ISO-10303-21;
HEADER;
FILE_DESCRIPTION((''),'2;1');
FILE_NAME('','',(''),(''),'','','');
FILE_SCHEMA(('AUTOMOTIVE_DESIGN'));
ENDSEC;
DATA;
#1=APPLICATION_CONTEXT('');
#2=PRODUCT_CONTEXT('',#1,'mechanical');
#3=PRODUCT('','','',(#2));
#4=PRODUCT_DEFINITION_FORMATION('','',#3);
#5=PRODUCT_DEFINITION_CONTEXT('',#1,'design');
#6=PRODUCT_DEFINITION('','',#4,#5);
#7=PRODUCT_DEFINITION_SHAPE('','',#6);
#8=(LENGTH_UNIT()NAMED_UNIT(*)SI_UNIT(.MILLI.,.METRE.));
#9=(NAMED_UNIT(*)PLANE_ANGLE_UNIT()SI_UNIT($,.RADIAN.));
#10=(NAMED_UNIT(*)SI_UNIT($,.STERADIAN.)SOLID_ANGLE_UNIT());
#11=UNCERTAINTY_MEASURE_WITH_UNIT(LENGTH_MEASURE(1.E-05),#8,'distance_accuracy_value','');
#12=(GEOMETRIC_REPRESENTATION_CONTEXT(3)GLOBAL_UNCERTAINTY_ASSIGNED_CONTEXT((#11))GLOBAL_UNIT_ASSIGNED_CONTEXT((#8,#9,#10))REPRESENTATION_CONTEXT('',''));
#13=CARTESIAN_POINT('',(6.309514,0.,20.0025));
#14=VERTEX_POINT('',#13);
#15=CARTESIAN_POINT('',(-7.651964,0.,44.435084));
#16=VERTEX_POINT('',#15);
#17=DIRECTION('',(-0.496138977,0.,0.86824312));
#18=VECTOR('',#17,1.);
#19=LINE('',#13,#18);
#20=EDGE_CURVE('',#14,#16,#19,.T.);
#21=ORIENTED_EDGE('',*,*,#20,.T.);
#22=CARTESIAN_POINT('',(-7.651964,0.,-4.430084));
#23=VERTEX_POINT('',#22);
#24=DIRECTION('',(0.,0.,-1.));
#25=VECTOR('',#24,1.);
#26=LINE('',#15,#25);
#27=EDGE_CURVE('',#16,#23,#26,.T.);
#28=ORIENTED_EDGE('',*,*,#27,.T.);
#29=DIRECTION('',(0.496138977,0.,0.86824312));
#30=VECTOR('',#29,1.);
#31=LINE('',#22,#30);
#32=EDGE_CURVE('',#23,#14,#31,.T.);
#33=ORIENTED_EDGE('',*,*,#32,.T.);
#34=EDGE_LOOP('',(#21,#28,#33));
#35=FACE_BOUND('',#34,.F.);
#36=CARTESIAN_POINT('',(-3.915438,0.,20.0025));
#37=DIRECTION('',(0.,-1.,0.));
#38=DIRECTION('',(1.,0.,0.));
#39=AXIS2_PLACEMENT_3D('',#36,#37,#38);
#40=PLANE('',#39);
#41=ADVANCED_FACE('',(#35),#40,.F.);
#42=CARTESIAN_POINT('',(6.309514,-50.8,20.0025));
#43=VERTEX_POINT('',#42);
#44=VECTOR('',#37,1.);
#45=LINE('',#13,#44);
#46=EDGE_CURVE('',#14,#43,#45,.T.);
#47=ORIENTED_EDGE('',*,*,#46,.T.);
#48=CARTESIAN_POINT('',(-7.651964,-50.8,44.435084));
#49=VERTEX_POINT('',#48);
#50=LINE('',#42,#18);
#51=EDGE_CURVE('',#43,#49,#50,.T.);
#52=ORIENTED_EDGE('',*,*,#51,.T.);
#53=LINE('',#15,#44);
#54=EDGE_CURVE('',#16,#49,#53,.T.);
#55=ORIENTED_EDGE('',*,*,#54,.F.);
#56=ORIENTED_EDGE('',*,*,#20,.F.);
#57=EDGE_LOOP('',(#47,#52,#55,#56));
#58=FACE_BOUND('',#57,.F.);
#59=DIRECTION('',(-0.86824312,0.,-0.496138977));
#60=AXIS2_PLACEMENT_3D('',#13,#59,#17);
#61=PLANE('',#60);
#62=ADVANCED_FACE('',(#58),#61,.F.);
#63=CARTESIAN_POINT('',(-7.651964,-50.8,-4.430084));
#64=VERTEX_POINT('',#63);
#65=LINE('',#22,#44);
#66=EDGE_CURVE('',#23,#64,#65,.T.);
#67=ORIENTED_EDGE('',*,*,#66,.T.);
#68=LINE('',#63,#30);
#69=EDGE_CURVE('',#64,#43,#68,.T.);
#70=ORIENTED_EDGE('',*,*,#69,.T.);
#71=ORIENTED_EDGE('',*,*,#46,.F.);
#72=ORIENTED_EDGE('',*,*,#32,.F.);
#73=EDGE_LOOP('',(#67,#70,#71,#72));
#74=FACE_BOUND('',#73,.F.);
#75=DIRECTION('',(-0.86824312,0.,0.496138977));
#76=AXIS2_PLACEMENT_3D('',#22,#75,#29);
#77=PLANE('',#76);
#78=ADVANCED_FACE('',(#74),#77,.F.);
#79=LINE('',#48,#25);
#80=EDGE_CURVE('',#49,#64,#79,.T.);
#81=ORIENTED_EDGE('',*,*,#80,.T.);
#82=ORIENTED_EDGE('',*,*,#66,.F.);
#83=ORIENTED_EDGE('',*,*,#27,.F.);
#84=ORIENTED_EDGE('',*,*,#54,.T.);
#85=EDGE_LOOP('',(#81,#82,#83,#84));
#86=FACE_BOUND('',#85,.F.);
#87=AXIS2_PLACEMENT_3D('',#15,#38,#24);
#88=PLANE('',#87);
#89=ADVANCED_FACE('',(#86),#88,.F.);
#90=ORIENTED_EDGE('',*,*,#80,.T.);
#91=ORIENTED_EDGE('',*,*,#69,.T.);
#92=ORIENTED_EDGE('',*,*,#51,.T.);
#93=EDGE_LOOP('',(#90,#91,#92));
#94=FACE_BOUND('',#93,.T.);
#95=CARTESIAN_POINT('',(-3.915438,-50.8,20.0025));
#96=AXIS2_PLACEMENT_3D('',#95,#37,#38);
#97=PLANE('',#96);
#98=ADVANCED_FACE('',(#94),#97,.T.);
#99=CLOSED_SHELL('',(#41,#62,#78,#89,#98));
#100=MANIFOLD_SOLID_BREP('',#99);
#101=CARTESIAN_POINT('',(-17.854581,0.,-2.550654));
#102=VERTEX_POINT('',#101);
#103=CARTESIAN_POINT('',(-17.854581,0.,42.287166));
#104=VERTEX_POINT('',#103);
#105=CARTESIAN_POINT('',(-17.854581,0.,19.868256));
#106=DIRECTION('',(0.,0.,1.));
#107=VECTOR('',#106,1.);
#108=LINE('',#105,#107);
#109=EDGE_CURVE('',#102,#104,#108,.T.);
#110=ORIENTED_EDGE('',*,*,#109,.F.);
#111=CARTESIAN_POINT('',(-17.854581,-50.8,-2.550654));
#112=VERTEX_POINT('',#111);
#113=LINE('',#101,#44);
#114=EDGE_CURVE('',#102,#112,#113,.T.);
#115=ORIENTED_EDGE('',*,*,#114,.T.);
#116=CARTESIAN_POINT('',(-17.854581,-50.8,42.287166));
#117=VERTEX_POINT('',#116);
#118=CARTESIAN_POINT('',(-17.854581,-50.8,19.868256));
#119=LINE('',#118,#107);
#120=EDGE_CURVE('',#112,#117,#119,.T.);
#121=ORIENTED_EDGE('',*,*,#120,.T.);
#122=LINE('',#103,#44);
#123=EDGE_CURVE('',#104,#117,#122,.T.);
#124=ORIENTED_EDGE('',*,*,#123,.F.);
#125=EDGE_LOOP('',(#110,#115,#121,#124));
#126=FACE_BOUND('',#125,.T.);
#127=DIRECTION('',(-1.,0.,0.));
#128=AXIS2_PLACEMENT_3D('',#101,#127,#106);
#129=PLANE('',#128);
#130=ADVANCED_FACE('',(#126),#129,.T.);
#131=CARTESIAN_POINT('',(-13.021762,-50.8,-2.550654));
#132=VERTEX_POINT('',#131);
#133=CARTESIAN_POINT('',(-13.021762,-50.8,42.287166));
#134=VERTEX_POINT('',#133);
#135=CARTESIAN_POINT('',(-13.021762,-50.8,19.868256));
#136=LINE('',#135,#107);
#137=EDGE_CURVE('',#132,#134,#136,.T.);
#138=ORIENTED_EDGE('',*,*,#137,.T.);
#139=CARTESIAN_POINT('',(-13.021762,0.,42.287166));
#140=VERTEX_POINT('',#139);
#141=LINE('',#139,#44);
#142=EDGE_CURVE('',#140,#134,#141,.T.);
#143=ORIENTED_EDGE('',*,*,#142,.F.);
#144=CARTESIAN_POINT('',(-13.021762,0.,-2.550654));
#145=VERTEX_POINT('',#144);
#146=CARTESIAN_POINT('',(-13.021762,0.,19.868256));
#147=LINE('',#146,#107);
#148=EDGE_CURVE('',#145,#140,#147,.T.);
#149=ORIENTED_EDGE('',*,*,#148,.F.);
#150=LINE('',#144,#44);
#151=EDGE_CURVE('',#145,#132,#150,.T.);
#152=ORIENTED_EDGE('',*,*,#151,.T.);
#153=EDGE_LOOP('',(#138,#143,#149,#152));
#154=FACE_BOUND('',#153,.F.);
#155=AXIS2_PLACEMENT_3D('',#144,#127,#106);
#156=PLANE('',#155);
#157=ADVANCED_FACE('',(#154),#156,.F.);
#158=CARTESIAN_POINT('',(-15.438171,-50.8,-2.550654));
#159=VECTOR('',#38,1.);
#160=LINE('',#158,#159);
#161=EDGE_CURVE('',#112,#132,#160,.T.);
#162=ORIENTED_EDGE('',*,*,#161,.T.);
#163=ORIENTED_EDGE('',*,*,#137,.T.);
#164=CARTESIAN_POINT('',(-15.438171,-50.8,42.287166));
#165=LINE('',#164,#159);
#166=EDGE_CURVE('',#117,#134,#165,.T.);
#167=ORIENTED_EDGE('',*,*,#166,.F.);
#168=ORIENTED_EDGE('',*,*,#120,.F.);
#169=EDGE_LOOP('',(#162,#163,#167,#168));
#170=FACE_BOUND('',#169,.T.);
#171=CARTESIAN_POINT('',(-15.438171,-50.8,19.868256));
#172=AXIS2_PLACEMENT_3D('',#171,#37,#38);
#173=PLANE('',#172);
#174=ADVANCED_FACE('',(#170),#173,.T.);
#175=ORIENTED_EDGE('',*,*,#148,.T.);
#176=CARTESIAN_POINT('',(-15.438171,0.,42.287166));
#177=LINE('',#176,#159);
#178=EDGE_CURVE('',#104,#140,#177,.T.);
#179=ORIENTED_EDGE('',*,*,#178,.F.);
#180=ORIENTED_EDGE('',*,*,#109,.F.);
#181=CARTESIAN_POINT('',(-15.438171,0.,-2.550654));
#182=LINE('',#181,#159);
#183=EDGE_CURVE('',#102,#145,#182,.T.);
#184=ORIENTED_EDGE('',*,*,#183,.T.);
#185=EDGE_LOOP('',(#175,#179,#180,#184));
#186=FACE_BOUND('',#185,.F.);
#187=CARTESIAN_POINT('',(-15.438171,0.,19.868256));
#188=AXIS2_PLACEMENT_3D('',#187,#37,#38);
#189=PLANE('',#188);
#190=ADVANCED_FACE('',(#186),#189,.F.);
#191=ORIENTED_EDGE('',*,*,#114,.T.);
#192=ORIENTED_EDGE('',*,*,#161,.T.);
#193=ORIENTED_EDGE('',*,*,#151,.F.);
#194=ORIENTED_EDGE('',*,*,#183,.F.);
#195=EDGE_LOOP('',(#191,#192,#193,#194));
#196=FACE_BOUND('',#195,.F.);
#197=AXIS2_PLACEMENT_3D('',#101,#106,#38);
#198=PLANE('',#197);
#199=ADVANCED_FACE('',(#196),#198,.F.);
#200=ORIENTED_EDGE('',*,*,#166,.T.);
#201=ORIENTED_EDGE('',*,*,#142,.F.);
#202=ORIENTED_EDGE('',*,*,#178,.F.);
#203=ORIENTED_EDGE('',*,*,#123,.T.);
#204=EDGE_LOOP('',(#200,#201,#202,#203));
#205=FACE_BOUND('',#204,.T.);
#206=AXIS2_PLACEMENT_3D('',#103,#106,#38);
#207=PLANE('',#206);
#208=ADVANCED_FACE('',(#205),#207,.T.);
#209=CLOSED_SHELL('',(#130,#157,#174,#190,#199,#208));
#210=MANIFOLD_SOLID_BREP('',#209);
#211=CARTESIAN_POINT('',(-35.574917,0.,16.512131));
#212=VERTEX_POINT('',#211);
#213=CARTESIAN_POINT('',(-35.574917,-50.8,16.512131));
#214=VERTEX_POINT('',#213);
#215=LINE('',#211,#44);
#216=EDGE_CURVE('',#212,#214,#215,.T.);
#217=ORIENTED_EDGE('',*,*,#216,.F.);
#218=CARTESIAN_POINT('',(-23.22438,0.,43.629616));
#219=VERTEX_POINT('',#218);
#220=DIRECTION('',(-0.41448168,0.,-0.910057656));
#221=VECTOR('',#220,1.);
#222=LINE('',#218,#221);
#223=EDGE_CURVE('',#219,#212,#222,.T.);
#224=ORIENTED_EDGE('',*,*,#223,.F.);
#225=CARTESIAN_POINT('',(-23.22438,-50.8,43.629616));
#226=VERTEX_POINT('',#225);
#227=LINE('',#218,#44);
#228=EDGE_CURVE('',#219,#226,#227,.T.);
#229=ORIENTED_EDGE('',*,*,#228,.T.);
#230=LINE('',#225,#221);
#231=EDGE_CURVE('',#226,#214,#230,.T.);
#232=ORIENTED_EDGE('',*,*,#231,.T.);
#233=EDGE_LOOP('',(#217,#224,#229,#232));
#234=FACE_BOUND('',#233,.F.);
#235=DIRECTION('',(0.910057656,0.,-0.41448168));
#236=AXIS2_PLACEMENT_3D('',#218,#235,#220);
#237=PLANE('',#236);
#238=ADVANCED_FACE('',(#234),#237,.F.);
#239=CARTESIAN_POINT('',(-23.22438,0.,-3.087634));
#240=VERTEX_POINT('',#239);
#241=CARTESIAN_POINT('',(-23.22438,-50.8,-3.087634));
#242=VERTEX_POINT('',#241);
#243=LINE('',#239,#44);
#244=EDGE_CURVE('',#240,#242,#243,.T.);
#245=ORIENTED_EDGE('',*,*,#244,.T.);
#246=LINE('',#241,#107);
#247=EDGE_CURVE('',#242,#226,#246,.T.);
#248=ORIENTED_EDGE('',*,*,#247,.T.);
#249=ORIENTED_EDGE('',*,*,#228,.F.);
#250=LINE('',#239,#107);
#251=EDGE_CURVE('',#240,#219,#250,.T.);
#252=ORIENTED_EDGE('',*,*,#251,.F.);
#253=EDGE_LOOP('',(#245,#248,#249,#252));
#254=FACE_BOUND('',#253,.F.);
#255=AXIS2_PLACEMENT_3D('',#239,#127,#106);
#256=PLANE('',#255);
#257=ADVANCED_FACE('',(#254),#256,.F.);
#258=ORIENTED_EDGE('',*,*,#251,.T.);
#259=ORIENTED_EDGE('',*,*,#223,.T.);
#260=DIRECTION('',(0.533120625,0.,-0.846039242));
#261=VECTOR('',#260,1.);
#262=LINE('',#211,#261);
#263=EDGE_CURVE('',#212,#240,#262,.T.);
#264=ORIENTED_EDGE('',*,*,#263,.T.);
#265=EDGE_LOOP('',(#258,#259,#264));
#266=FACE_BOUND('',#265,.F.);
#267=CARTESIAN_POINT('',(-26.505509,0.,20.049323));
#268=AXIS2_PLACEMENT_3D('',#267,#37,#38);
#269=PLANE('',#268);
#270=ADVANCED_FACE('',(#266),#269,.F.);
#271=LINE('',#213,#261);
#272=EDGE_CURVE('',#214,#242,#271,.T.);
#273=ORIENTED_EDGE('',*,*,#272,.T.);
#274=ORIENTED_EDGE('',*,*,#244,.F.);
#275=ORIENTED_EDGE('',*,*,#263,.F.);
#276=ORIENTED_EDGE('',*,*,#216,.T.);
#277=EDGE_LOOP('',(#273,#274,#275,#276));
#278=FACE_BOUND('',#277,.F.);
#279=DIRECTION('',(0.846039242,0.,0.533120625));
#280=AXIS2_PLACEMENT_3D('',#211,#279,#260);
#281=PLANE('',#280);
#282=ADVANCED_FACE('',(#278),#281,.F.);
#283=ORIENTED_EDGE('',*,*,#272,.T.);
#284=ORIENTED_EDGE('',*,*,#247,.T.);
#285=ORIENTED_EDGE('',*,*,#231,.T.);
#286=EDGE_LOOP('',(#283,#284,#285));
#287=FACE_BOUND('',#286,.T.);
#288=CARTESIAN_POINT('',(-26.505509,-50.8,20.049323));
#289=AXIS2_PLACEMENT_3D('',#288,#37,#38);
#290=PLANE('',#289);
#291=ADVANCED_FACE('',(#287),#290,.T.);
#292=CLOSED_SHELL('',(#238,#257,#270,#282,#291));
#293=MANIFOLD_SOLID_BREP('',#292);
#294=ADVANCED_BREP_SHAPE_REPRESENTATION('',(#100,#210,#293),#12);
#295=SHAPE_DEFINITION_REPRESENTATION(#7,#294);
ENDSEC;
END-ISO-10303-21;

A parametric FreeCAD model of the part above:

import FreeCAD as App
import Part
import Sketcher
Q = App.Units.Quantity


def add_polygon(sketch, points):
    """Adds a closed chain of lines whose ends are joined by coincident constraints."""
    first, n = sketch.GeometryCount, len(points)
    for a, b in zip(points, points[1:] + points[:1]):
        sketch.addGeometry(Part.LineSegment(App.Vector(*a, 0), App.Vector(*b, 0)), False)
    for i in range(n):
        sketch.addConstraint(Sketcher.Constraint("Coincident", first + i, 2, first + (i + 1) % n, 1))

doc = App.newDocument("Part")
body = doc.addObject("PartDesign::Body", "Body")

# Sketch on XZ plane
sketch1 = body.newObject("Sketcher::SketchObject", "Sketch")
sketch1.AttachmentSupport = (doc.getObject("XZ_Plane"), [""])
sketch1.MapMode = "FlatFace"
add_polygon(sketch1, [(-23.22438, -3.087634), (-23.22438, 43.629616), (-35.574917, 16.512131)])  # lines 0-2
sketch1.addConstraint([
    Sketcher.Constraint("Vertical", 0),
    Sketcher.Constraint("DistanceY", 0, 1, 0, 2, 46.71725),
    Sketcher.Constraint("DistanceX", 0, 2, -1, 1, 23.22438),
    Sketcher.Constraint("DistanceY", -1, 1, 1, 2, 16.512131),
    Sketcher.Constraint("Distance", 1, 29.797546),
    Sketcher.Constraint("Distance", 2, 23.166496),
])
pad1 = body.newObject("PartDesign::Pad", "Pad")
pad1.Profile = sketch1
pad1.Length = Q("2 in")
body2 = doc.addObject("PartDesign::Body", "Body001")

# Sketch on XZ plane
sketch2 = body2.newObject("Sketcher::SketchObject", "Sketch001")
sketch2.AttachmentSupport = (doc.getObject("XZ_Plane001"), [""])
sketch2.MapMode = "FlatFace"
add_polygon(sketch2, [(-17.854581, 42.287166), (-17.854581, -2.550654), (-13.021762, -2.550654), (-13.021762, 42.287166)])  # lines 0-3
sketch2.addConstraint([
    Sketcher.Constraint("Vertical", 0),
    Sketcher.Constraint("Horizontal", 1),
    Sketcher.Constraint("Vertical", 2),
    Sketcher.Constraint("Horizontal", 3),
    Sketcher.Constraint("DistanceX", 1, 1, 1, 2, 4.832819),
    Sketcher.Constraint("DistanceY", 0, 2, 0, 1, 44.837821),
    Sketcher.Constraint("DistanceX", 0, 2, -1, 1, 17.854581),
    Sketcher.Constraint("DistanceY", 0, 2, -1, 1, 2.550654),
])
pad2 = body2.newObject("PartDesign::Pad", "Pad001")
pad2.Profile = sketch2
pad2.Length = Q("2 in")
body3 = doc.addObject("PartDesign::Body", "Body002")

# Sketch on XZ plane
sketch3 = body3.newObject("Sketcher::SketchObject", "Sketch002")
sketch3.AttachmentSupport = (doc.getObject("XZ_Plane002"), [""])
sketch3.MapMode = "FlatFace"
add_polygon(sketch3, [(6.309514, 20.0025), (-7.651964, 44.435084), (-7.651964, -4.430084)])  # lines 0-2
sketch3.addConstraint([
    Sketcher.Constraint("Vertical", 1),
    Sketcher.Constraint("Equal", 0, 2),
    Sketcher.Constraint("DistanceY", -1, 1, 2, 2, Q("0.7875 in")),
    Sketcher.Constraint("DistanceY", 1, 2, 1, 1, 48.865168),
    Sketcher.Constraint("Distance", 0, 28.140256),
    Sketcher.Constraint("DistanceX", 0, 2, -1, 1, 7.651964),
])
pad3 = body3.newObject("PartDesign::Pad", "Pad002")
pad3.Profile = sketch3
pad3.Length = Q("2 in")

doc.recompute()
